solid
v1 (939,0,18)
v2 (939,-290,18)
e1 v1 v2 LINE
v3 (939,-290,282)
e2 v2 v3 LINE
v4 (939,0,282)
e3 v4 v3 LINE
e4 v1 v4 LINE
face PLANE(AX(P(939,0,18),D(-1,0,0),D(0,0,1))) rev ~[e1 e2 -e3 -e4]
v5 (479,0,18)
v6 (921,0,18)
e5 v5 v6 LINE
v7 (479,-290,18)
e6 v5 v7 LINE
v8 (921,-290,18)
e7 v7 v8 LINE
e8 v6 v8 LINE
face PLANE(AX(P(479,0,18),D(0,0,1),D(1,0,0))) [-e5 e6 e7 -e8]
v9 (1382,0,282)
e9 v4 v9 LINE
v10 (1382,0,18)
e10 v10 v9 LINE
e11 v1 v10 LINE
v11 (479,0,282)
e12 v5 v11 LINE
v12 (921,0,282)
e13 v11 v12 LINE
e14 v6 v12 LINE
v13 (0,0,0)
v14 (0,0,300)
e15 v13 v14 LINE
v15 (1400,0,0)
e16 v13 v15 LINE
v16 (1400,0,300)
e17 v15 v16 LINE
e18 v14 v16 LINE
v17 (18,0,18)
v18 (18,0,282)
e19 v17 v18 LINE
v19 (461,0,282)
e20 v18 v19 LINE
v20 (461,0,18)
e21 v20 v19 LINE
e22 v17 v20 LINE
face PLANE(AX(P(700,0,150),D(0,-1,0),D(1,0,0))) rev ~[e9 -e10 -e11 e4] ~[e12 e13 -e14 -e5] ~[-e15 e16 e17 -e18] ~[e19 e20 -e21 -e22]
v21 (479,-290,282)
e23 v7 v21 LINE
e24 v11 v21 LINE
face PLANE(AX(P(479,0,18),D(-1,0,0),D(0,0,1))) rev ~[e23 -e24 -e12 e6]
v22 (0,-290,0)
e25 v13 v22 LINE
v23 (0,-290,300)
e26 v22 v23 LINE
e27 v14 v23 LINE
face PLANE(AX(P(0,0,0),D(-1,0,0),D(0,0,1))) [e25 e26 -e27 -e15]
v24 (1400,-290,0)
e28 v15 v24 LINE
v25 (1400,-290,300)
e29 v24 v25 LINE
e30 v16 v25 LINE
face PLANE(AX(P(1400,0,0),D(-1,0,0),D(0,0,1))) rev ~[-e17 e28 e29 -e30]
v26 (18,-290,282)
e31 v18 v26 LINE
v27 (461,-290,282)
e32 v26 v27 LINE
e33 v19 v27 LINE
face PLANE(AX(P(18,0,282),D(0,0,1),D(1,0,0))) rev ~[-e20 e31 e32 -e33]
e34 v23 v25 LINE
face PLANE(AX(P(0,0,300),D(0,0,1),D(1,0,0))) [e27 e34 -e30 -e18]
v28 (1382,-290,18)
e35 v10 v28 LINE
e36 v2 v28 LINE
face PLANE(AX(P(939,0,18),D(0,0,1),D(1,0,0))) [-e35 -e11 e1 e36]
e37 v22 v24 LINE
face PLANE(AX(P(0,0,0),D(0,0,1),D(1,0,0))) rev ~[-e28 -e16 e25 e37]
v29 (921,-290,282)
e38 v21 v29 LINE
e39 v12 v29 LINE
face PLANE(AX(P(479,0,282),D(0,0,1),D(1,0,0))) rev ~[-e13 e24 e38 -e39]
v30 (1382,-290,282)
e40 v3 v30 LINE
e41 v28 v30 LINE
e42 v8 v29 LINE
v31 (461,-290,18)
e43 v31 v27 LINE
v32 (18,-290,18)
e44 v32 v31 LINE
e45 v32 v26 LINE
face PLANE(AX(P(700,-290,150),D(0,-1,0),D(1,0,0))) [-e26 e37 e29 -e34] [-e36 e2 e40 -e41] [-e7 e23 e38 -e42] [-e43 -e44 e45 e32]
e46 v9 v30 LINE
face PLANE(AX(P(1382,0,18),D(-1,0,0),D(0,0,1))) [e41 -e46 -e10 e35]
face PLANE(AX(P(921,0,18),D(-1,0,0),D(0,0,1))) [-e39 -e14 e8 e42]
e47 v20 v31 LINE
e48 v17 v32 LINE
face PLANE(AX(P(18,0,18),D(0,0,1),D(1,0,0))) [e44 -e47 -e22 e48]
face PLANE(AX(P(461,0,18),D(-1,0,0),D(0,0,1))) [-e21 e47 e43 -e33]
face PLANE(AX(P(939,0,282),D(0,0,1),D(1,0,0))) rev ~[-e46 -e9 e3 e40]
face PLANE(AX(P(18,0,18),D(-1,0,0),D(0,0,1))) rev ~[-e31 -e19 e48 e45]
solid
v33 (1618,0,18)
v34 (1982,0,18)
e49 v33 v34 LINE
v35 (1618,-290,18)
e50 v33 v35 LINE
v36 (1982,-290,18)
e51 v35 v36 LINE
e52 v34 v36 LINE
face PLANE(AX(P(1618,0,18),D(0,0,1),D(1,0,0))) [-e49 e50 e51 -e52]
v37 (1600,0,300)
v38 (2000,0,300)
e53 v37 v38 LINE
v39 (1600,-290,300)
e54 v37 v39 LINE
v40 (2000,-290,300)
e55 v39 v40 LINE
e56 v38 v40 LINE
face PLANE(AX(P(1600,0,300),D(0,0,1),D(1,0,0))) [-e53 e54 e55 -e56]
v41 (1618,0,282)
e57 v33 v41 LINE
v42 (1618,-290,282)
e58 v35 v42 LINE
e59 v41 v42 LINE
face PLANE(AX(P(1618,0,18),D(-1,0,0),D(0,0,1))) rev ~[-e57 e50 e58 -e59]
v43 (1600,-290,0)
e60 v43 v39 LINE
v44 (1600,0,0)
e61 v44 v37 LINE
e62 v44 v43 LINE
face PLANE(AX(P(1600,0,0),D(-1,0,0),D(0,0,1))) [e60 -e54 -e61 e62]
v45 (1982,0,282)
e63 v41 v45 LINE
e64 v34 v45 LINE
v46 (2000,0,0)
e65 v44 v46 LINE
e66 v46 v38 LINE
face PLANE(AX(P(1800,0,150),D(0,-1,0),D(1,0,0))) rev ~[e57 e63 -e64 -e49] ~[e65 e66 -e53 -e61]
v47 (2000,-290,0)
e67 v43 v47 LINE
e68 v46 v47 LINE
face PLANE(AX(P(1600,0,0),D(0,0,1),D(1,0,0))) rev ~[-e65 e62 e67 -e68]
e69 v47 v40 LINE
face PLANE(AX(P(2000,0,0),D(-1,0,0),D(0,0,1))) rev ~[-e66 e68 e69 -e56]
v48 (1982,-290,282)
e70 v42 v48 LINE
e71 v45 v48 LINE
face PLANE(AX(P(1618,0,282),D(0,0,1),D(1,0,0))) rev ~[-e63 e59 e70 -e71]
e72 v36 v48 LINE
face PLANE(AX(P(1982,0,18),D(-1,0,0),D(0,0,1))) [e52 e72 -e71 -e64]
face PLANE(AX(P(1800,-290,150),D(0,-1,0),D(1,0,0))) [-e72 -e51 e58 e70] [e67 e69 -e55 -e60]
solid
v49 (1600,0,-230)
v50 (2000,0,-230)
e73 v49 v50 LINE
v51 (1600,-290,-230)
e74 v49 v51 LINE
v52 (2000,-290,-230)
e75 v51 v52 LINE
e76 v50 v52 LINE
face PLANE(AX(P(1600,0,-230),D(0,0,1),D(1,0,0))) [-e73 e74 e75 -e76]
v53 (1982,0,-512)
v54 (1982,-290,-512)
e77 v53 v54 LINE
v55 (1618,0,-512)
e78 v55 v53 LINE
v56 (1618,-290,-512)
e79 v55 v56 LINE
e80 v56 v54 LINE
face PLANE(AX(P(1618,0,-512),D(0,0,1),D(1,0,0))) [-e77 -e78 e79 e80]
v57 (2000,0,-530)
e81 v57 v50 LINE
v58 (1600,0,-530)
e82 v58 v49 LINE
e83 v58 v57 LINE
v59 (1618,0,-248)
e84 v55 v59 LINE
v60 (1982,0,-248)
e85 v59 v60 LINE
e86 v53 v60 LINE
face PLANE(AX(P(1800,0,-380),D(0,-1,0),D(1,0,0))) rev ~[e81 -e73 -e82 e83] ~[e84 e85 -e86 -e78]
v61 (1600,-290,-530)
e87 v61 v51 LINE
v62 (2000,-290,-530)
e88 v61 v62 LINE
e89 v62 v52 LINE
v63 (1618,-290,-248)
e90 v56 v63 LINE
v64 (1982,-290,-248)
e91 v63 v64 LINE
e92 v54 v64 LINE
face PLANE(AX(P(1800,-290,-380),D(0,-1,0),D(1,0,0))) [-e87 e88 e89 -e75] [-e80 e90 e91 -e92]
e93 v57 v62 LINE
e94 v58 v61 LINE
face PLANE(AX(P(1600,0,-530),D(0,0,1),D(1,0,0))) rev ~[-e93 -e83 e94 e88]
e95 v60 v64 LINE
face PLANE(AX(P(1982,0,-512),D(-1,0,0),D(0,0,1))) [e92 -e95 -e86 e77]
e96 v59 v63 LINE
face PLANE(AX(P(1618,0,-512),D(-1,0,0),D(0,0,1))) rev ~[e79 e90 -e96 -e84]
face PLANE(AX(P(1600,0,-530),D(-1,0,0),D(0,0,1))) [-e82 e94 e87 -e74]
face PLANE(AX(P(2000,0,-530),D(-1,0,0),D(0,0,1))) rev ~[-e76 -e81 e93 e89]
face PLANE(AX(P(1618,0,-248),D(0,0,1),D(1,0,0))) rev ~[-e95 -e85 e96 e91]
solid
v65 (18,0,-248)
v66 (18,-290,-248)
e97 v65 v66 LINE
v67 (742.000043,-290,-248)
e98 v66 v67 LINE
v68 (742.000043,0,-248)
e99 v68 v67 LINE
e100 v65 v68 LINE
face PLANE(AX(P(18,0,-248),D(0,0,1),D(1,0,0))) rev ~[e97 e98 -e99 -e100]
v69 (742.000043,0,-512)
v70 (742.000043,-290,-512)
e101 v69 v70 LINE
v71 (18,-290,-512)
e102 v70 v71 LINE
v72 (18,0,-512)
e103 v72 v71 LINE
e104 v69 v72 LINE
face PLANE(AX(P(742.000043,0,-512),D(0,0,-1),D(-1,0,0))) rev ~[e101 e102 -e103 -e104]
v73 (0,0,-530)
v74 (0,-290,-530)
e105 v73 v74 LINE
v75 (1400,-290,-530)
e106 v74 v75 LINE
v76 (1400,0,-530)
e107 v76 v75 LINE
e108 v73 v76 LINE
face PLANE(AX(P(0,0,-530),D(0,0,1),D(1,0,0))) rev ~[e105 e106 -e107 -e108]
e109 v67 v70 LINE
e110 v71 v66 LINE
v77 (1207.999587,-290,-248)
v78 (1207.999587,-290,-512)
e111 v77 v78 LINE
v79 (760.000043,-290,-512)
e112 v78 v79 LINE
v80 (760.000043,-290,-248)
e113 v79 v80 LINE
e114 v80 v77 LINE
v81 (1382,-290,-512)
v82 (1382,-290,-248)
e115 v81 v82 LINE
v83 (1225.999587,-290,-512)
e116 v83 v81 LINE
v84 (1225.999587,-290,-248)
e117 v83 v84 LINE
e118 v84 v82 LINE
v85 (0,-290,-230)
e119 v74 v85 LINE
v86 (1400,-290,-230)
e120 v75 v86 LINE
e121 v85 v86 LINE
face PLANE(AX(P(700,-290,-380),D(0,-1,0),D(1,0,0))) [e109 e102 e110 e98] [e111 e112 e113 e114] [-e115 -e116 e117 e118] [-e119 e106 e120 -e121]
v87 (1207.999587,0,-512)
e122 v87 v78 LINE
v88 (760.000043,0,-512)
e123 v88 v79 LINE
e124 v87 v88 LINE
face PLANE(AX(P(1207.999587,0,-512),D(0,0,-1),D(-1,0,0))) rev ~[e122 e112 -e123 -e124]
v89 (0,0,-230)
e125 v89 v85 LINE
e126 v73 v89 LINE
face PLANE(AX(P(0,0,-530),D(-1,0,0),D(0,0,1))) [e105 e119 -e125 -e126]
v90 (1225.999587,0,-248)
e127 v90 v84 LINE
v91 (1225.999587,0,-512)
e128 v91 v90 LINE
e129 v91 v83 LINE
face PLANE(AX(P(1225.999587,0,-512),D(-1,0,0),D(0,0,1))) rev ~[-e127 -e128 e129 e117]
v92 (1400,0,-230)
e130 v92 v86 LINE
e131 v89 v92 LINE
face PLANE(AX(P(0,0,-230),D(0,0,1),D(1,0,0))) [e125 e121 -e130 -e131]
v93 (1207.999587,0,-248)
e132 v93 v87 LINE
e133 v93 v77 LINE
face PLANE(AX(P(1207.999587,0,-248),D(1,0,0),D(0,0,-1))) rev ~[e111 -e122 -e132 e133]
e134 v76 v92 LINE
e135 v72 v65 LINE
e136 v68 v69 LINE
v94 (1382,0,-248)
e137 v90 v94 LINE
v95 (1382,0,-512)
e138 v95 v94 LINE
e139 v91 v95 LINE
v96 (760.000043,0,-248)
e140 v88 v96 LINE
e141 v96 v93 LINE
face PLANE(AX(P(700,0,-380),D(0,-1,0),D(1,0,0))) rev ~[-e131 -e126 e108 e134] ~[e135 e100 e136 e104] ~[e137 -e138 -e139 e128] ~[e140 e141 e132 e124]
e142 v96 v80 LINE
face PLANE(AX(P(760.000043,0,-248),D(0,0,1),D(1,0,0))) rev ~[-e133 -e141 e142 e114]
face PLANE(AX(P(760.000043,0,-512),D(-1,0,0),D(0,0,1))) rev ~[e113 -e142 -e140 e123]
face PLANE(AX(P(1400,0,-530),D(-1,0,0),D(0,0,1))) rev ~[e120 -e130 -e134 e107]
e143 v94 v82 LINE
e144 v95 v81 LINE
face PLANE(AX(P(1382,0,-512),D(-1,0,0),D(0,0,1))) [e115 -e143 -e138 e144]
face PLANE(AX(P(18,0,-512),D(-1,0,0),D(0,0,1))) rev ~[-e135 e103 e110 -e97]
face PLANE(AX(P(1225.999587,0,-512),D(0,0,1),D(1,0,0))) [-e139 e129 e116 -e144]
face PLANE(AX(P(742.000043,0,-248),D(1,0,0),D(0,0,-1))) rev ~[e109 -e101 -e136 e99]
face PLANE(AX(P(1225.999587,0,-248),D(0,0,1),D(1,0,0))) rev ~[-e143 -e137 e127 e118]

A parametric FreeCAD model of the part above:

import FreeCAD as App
import Part
import Sketcher

V = App.Vector

doc = App.newDocument("Part")
params = doc.addObject("Spreadsheet::Sheet", "Params")
for row, (alias, value) in enumerate([
    ("sketch1_width", "1400 mm"),
    ("sketch1_width2", "443 mm"),
    ("sketch1_width3", "442 mm"),
    ("sketch1_width4", "400 mm"),
    ("sketch1_width5", "364 mm"),
    ("pad1_length", "290 mm"),
], start=1):
    params.set(f"A{row}", alias)
    params.set(f"B{row}", "=" + value)
    params.setAlias(f"B{row}", alias)

body = doc.addObject("PartDesign::Body", "Body")
body.AllowCompound = True

# Sketch on XZ plane
sketch1 = body.newObject("Sketcher::SketchObject", "Sketch")
sketch1.AttachmentSupport = (doc.getObject("XZ_Plane"), [""])
sketch1.MapMode = "FlatFace"
sketch1.addGeometry([
    Part.LineSegment(V(0, 300, 0), V(0, 0, 0)),  # 0
    Part.LineSegment(V(0, 0, 0), V(1400, 0, 0)),  # 1
    Part.LineSegment(V(1400, 0, 0), V(1400, 300, 0)),  # 2
    Part.LineSegment(V(1400, 300, 0), V(0, 300, 0)),  # 3
    Part.LineSegment(V(461, 18, 0), V(18, 18, 0)),  # 4
    Part.LineSegment(V(18, 18, 0), V(18, 282, 0)),  # 5
    Part.LineSegment(V(18, 282, 0), V(461, 282, 0)),  # 6
    Part.LineSegment(V(461, 282, 0), V(461, 18, 0)),  # 7
    Part.LineSegment(V(921, 18, 0), V(479, 18, 0)),  # 8
    Part.LineSegment(V(479, 18, 0), V(479, 282, 0)),  # 9
    Part.LineSegment(V(479, 282, 0), V(921, 282, 0)),  # 10
    Part.LineSegment(V(921, 282, 0), V(921, 18, 0)),  # 11
    Part.LineSegment(V(1382, 18, 0), V(939, 18, 0)),  # 12
    Part.LineSegment(V(939, 18, 0), V(939, 282, 0)),  # 13
    Part.LineSegment(V(939, 282, 0), V(1382, 282, 0)),  # 14
    Part.LineSegment(V(1382, 282, 0), V(1382, 18, 0)),  # 15
    Part.LineSegment(V(1600, 300, 0), V(1600, 0, 0)),  # 16
    Part.LineSegment(V(1600, 0, 0), V(2000, 0, 0)),  # 17
    Part.LineSegment(V(2000, 0, 0), V(2000, 300, 0)),  # 18
    Part.LineSegment(V(2000, 300, 0), V(1600, 300, 0)),  # 19
    Part.LineSegment(V(1982, 18, 0), V(1618, 18, 0)),  # 20
    Part.LineSegment(V(1618, 18, 0), V(1618, 282, 0)),  # 21
    Part.LineSegment(V(1618, 282, 0), V(1982, 282, 0)),  # 22
    Part.LineSegment(V(1982, 282, 0), V(1982, 18, 0)),  # 23
    Part.LineSegment(V(0, -230, 0), V(0, -530, 0)),  # 24
    Part.LineSegment(V(0, -530, 0), V(1400, -530, 0)),  # 25
    Part.LineSegment(V(1400, -530, 0), V(1400, -230, 0)),  # 26
    Part.LineSegment(V(1400, -230, 0), V(0, -230, 0)),  # 27
    Part.LineSegment(V(18, -248, 0), V(742.000043, -248, 0)),  # 28
    Part.LineSegment(V(742.000043, -248, 0), V(742.000043, -512, 0)),  # 29
    Part.LineSegment(V(742.000043, -512, 0), V(18, -512, 0)),  # 30
    Part.LineSegment(V(18, -512, 0), V(18, -248, 0)),  # 31
    Part.LineSegment(V(760.000043, -248, 0), V(1207.999587, -248, 0)),  # 32
    Part.LineSegment(V(1207.999587, -248, 0), V(1207.999587, -512, 0)),  # 33
    Part.LineSegment(V(1207.999587, -512, 0), V(760.000043, -512, 0)),  # 34
    Part.LineSegment(V(760.000043, -512, 0), V(760.000043, -248, 0)),  # 35
    Part.LineSegment(V(1382, -512, 0), V(1225.999587, -512, 0)),  # 36
    Part.LineSegment(V(1225.999587, -512, 0), V(1225.999587, -248, 0)),  # 37
    Part.LineSegment(V(1225.999587, -248, 0), V(1382, -248, 0)),  # 38
    Part.LineSegment(V(1382, -248, 0), V(1382, -512, 0)),  # 39
    Part.LineSegment(V(1600, -230, 0), V(1600, -530, 0)),  # 40
    Part.LineSegment(V(1600, -530, 0), V(2000, -530, 0)),  # 41
    Part.LineSegment(V(2000, -530, 0), V(2000, -230, 0)),  # 42
    Part.LineSegment(V(2000, -230, 0), V(1600, -230, 0)),  # 43
    Part.LineSegment(V(1982, -512, 0), V(1618, -512, 0)),  # 44
    Part.LineSegment(V(1618, -512, 0), V(1618, -248, 0)),  # 45
    Part.LineSegment(V(1618, -248, 0), V(1982, -248, 0)),  # 46
    Part.LineSegment(V(1982, -248, 0), V(1982, -512, 0)),  # 47
], False)
sketch1.addConstraint([
    Sketcher.Constraint("Coincident", 0, 2, 1, 1),
    Sketcher.Constraint("Coincident", 1, 2, 2, 1),
    Sketcher.Constraint("Coincident", 2, 2, 3, 1),
    Sketcher.Constraint("Coincident", 3, 2, 0, 1),
    Sketcher.Constraint("Coincident", 4, 2, 5, 1),
    Sketcher.Constraint("Coincident", 5, 2, 6, 1),
    Sketcher.Constraint("Coincident", 6, 2, 7, 1),
    Sketcher.Constraint("Coincident", 7, 2, 4, 1),
    Sketcher.Constraint("Coincident", 8, 2, 9, 1),
    Sketcher.Constraint("Coincident", 9, 2, 10, 1),
    Sketcher.Constraint("Coincident", 10, 2, 11, 1),
    Sketcher.Constraint("Coincident", 11, 2, 8, 1),
    Sketcher.Constraint("Coincident", 12, 2, 13, 1),
    Sketcher.Constraint("Coincident", 13, 2, 14, 1),
    Sketcher.Constraint("Coincident", 14, 2, 15, 1),
    Sketcher.Constraint("Coincident", 15, 2, 12, 1),
    Sketcher.Constraint("Coincident", 16, 2, 17, 1),
    Sketcher.Constraint("Coincident", 17, 2, 18, 1),
    Sketcher.Constraint("Coincident", 18, 2, 19, 1),
    Sketcher.Constraint("Coincident", 19, 2, 16, 1),
    Sketcher.Constraint("Coincident", 20, 2, 21, 1),
    Sketcher.Constraint("Coincident", 21, 2, 22, 1),
    Sketcher.Constraint("Coincident", 22, 2, 23, 1),
    Sketcher.Constraint("Coincident", 23, 2, 20, 1),
    Sketcher.Constraint("Coincident", 24, 2, 25, 1),
    Sketcher.Constraint("Coincident", 25, 2, 26, 1),
    Sketcher.Constraint("Coincident", 26, 2, 27, 1),
    Sketcher.Constraint("Coincident", 27, 2, 24, 1),
    Sketcher.Constraint("Coincident", 28, 2, 29, 1),
    Sketcher.Constraint("Coincident", 29, 2, 30, 1),
    Sketcher.Constraint("Coincident", 30, 2, 31, 1),
    Sketcher.Constraint("Coincident", 31, 2, 28, 1),
    Sketcher.Constraint("Coincident", 32, 2, 33, 1),
    Sketcher.Constraint("Coincident", 33, 2, 34, 1),
    Sketcher.Constraint("Coincident", 34, 2, 35, 1),
    Sketcher.Constraint("Coincident", 35, 2, 32, 1),
    Sketcher.Constraint("Coincident", 36, 2, 37, 1),
    Sketcher.Constraint("Coincident", 37, 2, 38, 1),
    Sketcher.Constraint("Coincident", 38, 2, 39, 1),
    Sketcher.Constraint("Coincident", 39, 2, 36, 1),
    Sketcher.Constraint("Coincident", 40, 2, 41, 1),
    Sketcher.Constraint("Coincident", 41, 2, 42, 1),
    Sketcher.Constraint("Coincident", 42, 2, 43, 1),
    Sketcher.Constraint("Coincident", 43, 2, 40, 1),
    Sketcher.Constraint("Coincident", 44, 2, 45, 1),
    Sketcher.Constraint("Coincident", 45, 2, 46, 1),
    Sketcher.Constraint("Coincident", 46, 2, 47, 1),
    Sketcher.Constraint("Coincident", 47, 2, 44, 1),
    Sketcher.Constraint("Vertical", 0),
    Sketcher.Constraint("Horizontal", 1),
    Sketcher.Constraint("Vertical", 2),
    Sketcher.Constraint("Horizontal", 3),
    Sketcher.Constraint("Horizontal", 4),
    Sketcher.Constraint("Vertical", 5),
    Sketcher.Constraint("Horizontal", 6),
    Sketcher.Constraint("Vertical", 7),
    Sketcher.Constraint("Horizontal", 8),
    Sketcher.Constraint("Vertical", 9),
    Sketcher.Constraint("Horizontal", 10),
    Sketcher.Constraint("Vertical", 11),
    Sketcher.Constraint("Horizontal", 12),
    Sketcher.Constraint("Vertical", 13),
    Sketcher.Constraint("Horizontal", 14),
    Sketcher.Constraint("Vertical", 15),
    Sketcher.Constraint("Vertical", 16),
    Sketcher.Constraint("Horizontal", 17),
    Sketcher.Constraint("Vertical", 18),
    Sketcher.Constraint("Horizontal", 19),
    Sketcher.Constraint("Horizontal", 20),
    Sketcher.Constraint("Vertical", 21),
    Sketcher.Constraint("Horizontal", 22),
    Sketcher.Constraint("Vertical", 23),
    Sketcher.Constraint("Vertical", 24),
    Sketcher.Constraint("Horizontal", 25),
    Sketcher.Constraint("Vertical", 26),
    Sketcher.Constraint("Horizontal", 27),
    Sketcher.Constraint("Horizontal", 28),
    Sketcher.Constraint("Vertical", 29),
    Sketcher.Constraint("Horizontal", 30),
    Sketcher.Constraint("Vertical", 31),
    Sketcher.Constraint("Horizontal", 32),
    Sketcher.Constraint("Vertical", 33),
    Sketcher.Constraint("Horizontal", 34),
    Sketcher.Constraint("Vertical", 35),
    Sketcher.Constraint("Horizontal", 36),
    Sketcher.Constraint("Vertical", 37),
    Sketcher.Constraint("Horizontal", 38),
    Sketcher.Constraint("Vertical", 39),
    Sketcher.Constraint("Vertical", 40),
    Sketcher.Constraint("Horizontal", 41),
    Sketcher.Constraint("Vertical", 42),
    Sketcher.Constraint("Horizontal", 43),
    Sketcher.Constraint("Horizontal", 44),
    Sketcher.Constraint("Vertical", 45),
    Sketcher.Constraint("Horizontal", 46),
    Sketcher.Constraint("Vertical", 47),
    Sketcher.Constraint("Coincident", 0, 2, -1, 1),
    Sketcher.Constraint("PointOnObject", 16, 2, -1),
    Sketcher.Constraint("PointOnObject", 24, 2, -2),
    Sketcher.Constraint("Horizontal", 7, 2, 8, 2),
    Sketcher.Constraint("Horizontal", 6, 2, 9, 2),
    Sketcher.Constraint("Horizontal", 11, 2, 12, 2),
    Sketcher.Constraint("Horizontal", 10, 2, 13, 2),
    Sketcher.Constraint("Horizontal", 3, 2, 18, 2),
    Sketcher.Constraint("Horizontal", 15, 2, 20, 2),
    Sketcher.Constraint("Horizontal", 14, 2, 21, 2),
    Sketcher.Constraint("Horizontal", 31, 2, 32, 2),
    Sketcher.Constraint("Horizontal", 30, 2, 33, 2),
    Sketcher.Constraint("Horizontal", 34, 2, 36, 2),
    Sketcher.Constraint("Horizontal", 35, 2, 37, 2),
    Sketcher.Constraint("Horizontal", 25, 2, 40, 2),
    Sketcher.Constraint("Horizontal", 27, 2, 42, 2),
    Sketcher.Constraint("Horizontal", 39, 2, 44, 2),
    Sketcher.Constraint("Horizontal", 38, 2, 45, 2),
    Sketcher.Constraint("Vertical", 2, 2, 25, 2),
    Sketcher.Constraint("Vertical", 5, 2, 30, 2),
    Sketcher.Constraint("Vertical", 15, 2, 38, 2),
    Sketcher.Constraint("Vertical", 19, 2, 40, 2),
    Sketcher.Constraint("Vertical", 18, 2, 41, 2),
    Sketcher.Constraint("Vertical", 21, 2, 44, 2),
    Sketcher.Constraint("Vertical", 23, 2, 46, 2),
    Sketcher.Constraint("Equal", 6, 12),
    Sketcher.Constraint("Equal", 18, 24),
    Sketcher.Constraint("Equal", 23, 29),
    Sketcher.Constraint("DistanceX", 1, 1, 1, 2, 1400.0),
    Sketcher.Constraint("DistanceX", 4, 2, 4, 1, 443.0),
    Sketcher.Constraint("DistanceX", 8, 2, 8, 1, 442.0),
    Sketcher.Constraint("DistanceX", 17, 1, 17, 2, 400.0),
    Sketcher.Constraint("DistanceX", 20, 2, 20, 1, 364.0),
    Sketcher.Constraint("DistanceY", 0, 2, 0, 1, 300.0),
    Sketcher.Constraint("DistanceY", 5, 1, 5, 2, 264.0),
    Sketcher.Constraint("DistanceX", -1, 1, 4, 2, 18.0),
    Sketcher.Constraint("DistanceY", -1, 1, 4, 2, 18.0),
    Sketcher.Constraint("DistanceX", -1, 1, 8, 2, 479.0),
    Sketcher.Constraint("DistanceX", -1, 1, 12, 2, 939.0),
    Sketcher.Constraint("DistanceX", -1, 1, 16, 2, 1600.0),
    Sketcher.Constraint("DistanceX", -1, 1, 20, 2, 1618.0),
    Sketcher.Constraint("DistanceY", 24, 2, -1, 1, 530.0),
    Sketcher.Constraint("DistanceY", 28, 2, -1, 1, 248.0),
    Sketcher.Constraint("DistanceX", 29, 2, 34, 2, 18.0),
    Sketcher.Constraint("DistanceX", 33, 2, 36, 2, 18.0),
    Sketcher.Constraint("DistanceX", 28, 1, 28, 2, 724.000043),
    Sketcher.Constraint("DistanceX", 32, 1, 32, 2, 447.999544),
])
sketch1.setExpression("Constraints[124]", "Params.sketch1_width")
sketch1.setExpression("Constraints[125]", "Params.sketch1_width2")
sketch1.setExpression("Constraints[126]", "Params.sketch1_width3")
sketch1.setExpression("Constraints[127]", "Params.sketch1_width4")
sketch1.setExpression("Constraints[128]", "Params.sketch1_width5")
pad1 = body.newObject("PartDesign::Pad", "Pad")
pad1.Profile = sketch1
pad1.setExpression("Length", "Params.pad1_length")

doc.recompute()
